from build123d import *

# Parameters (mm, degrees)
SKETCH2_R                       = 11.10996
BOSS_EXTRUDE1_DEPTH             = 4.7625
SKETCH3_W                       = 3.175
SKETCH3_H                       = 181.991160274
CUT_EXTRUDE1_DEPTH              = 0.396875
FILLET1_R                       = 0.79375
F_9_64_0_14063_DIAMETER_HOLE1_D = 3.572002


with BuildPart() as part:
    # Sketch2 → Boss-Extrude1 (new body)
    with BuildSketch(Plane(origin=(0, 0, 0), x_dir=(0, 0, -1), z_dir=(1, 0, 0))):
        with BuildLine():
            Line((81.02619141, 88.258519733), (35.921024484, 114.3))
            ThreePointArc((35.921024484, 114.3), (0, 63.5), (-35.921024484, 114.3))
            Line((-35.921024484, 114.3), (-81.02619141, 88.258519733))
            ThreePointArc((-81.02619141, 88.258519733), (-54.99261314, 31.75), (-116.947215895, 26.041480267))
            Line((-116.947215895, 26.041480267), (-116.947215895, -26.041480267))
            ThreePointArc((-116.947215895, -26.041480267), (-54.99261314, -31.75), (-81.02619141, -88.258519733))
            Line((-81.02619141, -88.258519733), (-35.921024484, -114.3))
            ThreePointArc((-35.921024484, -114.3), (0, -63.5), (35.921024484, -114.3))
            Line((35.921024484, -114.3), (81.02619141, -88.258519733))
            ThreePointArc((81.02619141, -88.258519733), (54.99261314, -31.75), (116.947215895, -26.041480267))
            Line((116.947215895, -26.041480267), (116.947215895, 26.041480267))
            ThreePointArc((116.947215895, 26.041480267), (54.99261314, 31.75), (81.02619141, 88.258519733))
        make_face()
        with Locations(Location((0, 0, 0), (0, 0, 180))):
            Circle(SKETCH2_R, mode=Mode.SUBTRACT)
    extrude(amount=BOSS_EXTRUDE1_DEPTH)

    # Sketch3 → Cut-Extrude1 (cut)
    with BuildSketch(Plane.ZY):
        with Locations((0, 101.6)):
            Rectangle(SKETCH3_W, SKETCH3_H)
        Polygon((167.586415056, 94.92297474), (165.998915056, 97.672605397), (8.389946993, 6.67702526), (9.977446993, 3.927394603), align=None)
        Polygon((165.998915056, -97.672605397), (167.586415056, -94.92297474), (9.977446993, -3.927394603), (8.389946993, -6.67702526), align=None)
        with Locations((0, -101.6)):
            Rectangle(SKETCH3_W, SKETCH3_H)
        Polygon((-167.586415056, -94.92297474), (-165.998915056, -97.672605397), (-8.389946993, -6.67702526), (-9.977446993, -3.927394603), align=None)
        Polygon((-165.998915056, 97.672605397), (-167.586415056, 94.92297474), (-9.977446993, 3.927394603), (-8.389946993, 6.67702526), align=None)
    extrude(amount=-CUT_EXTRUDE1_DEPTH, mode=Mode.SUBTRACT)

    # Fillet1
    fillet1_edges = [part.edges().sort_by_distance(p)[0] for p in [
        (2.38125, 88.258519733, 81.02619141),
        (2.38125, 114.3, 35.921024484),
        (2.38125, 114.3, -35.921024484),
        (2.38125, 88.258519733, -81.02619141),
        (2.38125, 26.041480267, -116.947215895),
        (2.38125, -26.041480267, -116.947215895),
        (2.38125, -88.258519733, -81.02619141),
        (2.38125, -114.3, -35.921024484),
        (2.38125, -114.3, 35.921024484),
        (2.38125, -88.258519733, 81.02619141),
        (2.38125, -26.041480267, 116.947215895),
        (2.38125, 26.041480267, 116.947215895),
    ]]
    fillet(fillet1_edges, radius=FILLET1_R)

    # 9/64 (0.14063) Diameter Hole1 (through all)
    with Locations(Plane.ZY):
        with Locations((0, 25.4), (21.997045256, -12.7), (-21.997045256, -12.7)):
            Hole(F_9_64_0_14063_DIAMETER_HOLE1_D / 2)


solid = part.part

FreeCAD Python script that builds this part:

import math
import FreeCAD as App
import Part
import Sketcher

V = App.Vector
Q = App.Units.Quantity


def edges_at(feature, points):
    """Names of the edges that pass closest to the given points."""
    edges = feature.Shape.Edges
    near = lambda p: min(range(len(edges)), key=lambda i: edges[i].distToShape(Part.Vertex(*p))[0])
    return sorted({f"Edge{near(p) + 1}" for p in points})


def add_polygon(sketch, points):
    """Adds a closed chain of lines whose ends are joined by coincident constraints."""
    first, n = sketch.GeometryCount, len(points)
    for a, b in zip(points, points[1:] + points[:1]):
        sketch.addGeometry(Part.LineSegment(App.Vector(*a, 0), App.Vector(*b, 0)), False)
    for i in range(n):
        sketch.addConstraint(Sketcher.Constraint("Coincident", first + i, 2, first + (i + 1) % n, 1))

doc = App.newDocument("Part")
body = doc.addObject("PartDesign::Body", "Body")

# Sketch on YZ plane
sketch1 = body.newObject("Sketcher::SketchObject", "Sketch")
sketch1.AttachmentSupport = (doc.getObject("YZ_Plane"), [""])
sketch1.MapMode = "FlatFace"
sketch1.addGeometry([
    Part.LineSegment(V(88, -81, 0), V(114, -36, 0)),  # 0
    Part.ArcOfCircle(Part.Circle(V(102, 0, 0), V(0, 0, 1), 38), math.radians(71), math.radians(289)),  # 1
    Part.LineSegment(V(114, 36, 0), V(88, 81, 0)),  # 2
    Part.ArcOfCircle(Part.Circle(V(51, 88, 0), V(0, 0, 1), 38), math.radians(131), math.radians(349)),  # 3
    Part.LineSegment(V(26, 117, 0), V(-26, 117, 0)),  # 4
    Part.ArcOfCircle(Part.Circle(V(-51, 88, 0), V(0, 0, 1), 38), math.radians(-169), math.radians(49)),  # 5
    Part.LineSegment(V(-88, 81, 0), V(-114, 36, 0)),  # 6
    Part.ArcOfCircle(Part.Circle(V(-102, 0, 0), V(0, 0, 1), 38), math.radians(-109), math.radians(109)),  # 7
    Part.LineSegment(V(-114, -36, 0), V(-88, -81, 0)),  # 8
    Part.ArcOfCircle(Part.Circle(V(-51, -88, 0), V(0, 0, 1), 38), math.radians(-49), math.radians(169)),  # 9
    Part.LineSegment(V(-26, -117, 0), V(26, -117, 0)),  # 10
    Part.ArcOfCircle(Part.Circle(V(51, -88, 0), V(0, 0, 1), 38), math.radians(11), math.radians(229)),  # 11
    Part.Circle(V(0, 0, 0), V(0, 0, 1), 11),  # 12
], False)
sketch1.addConstraint([
    Sketcher.Constraint("Coincident", 0, 2, 1, 2),
    Sketcher.Constraint("Coincident", 1, 1, 2, 1),
    Sketcher.Constraint("Coincident", 2, 2, 3, 2),
    Sketcher.Constraint("Coincident", 3, 1, 4, 1),
    Sketcher.Constraint("Coincident", 4, 2, 5, 2),
    Sketcher.Constraint("Coincident", 5, 1, 6, 1),
    Sketcher.Constraint("Coincident", 6, 2, 7, 2),
    Sketcher.Constraint("Coincident", 7, 1, 8, 1),
    Sketcher.Constraint("Coincident", 8, 2, 9, 2),
    Sketcher.Constraint("Coincident", 9, 1, 10, 1),
    Sketcher.Constraint("Coincident", 10, 2, 11, 2),
    Sketcher.Constraint("Coincident", 11, 1, 0, 1),
    Sketcher.Constraint("Horizontal", 4),
    Sketcher.Constraint("Horizontal", 10),
    Sketcher.Constraint("Coincident", 12, 3, -1, 1),
    Sketcher.Constraint("Equal", 1, 3),
    Sketcher.Constraint("Equal", 3, 5),
    Sketcher.Constraint("Equal", 5, 7),
    Sketcher.Constraint("Equal", 7, 9),
    Sketcher.Constraint("Equal", 9, 11),
    Sketcher.Constraint("Symmetric", 1, 3, 7, 3, -1, 1),
    Sketcher.Constraint("Symmetric", 3, 3, 9, 3, -1, 1),
    Sketcher.Constraint("Symmetric", 5, 3, 11, 3, -1, 1),
    Sketcher.Constraint("Symmetric", 3, 3, 5, 3, -2),
    Sketcher.Constraint("Symmetric", 1, 1, 6, 2, -2),
    Sketcher.Constraint("Parallel", 0, 6),
    Sketcher.Constraint("Parallel", 2, 8),
    Sketcher.Constraint("Horizontal", 2, 2, 5, 1),
    Sketcher.Constraint("Horizontal", 0, 2, 7, 1),
    Sketcher.Constraint("Vertical", 0, 2, 1, 1),
    Sketcher.Constraint("Vertical", 4, 2, 9, 1),
    Sketcher.Constraint("Radius", 1, Q("1.5 in")),
    Sketcher.Constraint("DistanceX", -1, 1, 1, 3, Q("4 in")),
    Sketcher.Constraint("DistanceX", -1, 1, 3, 3, Q("2 in")),
    Sketcher.Constraint("Angle", 0, Q("60 deg")),
    Sketcher.Constraint("Diameter", 12, Q("0.8748 in")),
    Sketcher.Constraint("DistanceX", -1, 1, 0, 2, Q("4.5 in")),
    Sketcher.Constraint("DistanceX", 4, 2, 2, 2, Q("4.5 in")),
    Sketcher.Constraint("DistanceX", 4, 2, 4, 1, 52.082961),
])
pad1 = body.newObject("PartDesign::Pad", "Pad")
pad1.Profile = sketch1
pad1.Length = Q("0.1875 in")

# Sketch on YZ plane
sketch2 = body.newObject("Sketcher::SketchObject", "Sketch001")
sketch2.AttachmentSupport = (doc.getObject("YZ_Plane"), [""])
sketch2.MapMode = "FlatFace"
add_polygon(sketch2, [(192.6, -1.6), (10.6, -1.6), (10.6, 1.6), (192.6, 1.6)])  # lines 0-3
add_polygon(sketch2, [(94.9, 167.6), (97.7, 166), (6.7, 8.4), (3.9, 10)])  # lines 4-7
add_polygon(sketch2, [(-97.7, 166), (-94.9, 167.6), (-3.9, 10), (-6.7, 8.4)])  # lines 8-11
add_polygon(sketch2, [(-10.6, -1.6), (-192.6, -1.6), (-192.6, 1.6), (-10.6, 1.6)])  # lines 12-15
add_polygon(sketch2, [(-94.9, -167.6), (-97.7, -166), (-6.7, -8.4), (-3.9, -10)])  # lines 16-19
add_polygon(sketch2, [(97.7, -166), (94.9, -167.6), (3.9, -10), (6.7, -8.4)])  # lines 20-23
sketch2.addConstraint([
    Sketcher.Constraint("Horizontal", 0),
    Sketcher.Constraint("Vertical", 1),
    Sketcher.Constraint("Horizontal", 2),
    Sketcher.Constraint("Vertical", 3),
    Sketcher.Constraint("Horizontal", 12),
    Sketcher.Constraint("Vertical", 13),
    Sketcher.Constraint("Horizontal", 14),
    Sketcher.Constraint("Vertical", 15),
    Sketcher.Constraint("Symmetric", 2, 2, 12, 2, -1, 1),
    Sketcher.Constraint("Symmetric", 0, 2, 14, 2, -1, 1),
    Sketcher.Constraint("Symmetric", 4, 2, 16, 2, -1, 1),
    Sketcher.Constraint("Symmetric", 5, 2, 17, 2, -1, 1),
    Sketcher.Constraint("Symmetric", 6, 2, 18, 2, -1, 1),
    Sketcher.Constraint("Symmetric", 7, 2, 19, 2, -1, 1),
    Sketcher.Constraint("Symmetric", 8, 2, 20, 2, -1, 1),
    Sketcher.Constraint("Symmetric", 9, 2, 21, 2, -1, 1),
    Sketcher.Constraint("Symmetric", 10, 2, 22, 2, -1, 1),
    Sketcher.Constraint("Symmetric", 11, 2, 23, 2, -1, 1),
    Sketcher.Constraint("Symmetric", 7, 2, 8, 2, -2),
    Sketcher.Constraint("Symmetric", 6, 2, 9, 2, -2),
    Sketcher.Constraint("Symmetric", 5, 2, 10, 2, -2),
    Sketcher.Constraint("Symmetric", 4, 2, 11, 2, -2),
    Sketcher.Constraint("Perpendicular", 4, 5),
    Sketcher.Constraint("Perpendicular", 5, 6),
    Sketcher.Constraint("Perpendicular", 6, 7),
    Sketcher.Constraint("Horizontal", 3, 2, 12, 2),
    Sketcher.Constraint("Angle", 4, Q("-30 deg")),
    Sketcher.Constraint("DistanceX", 8, 2, 5, 2, Q("4 in")),
    Sketcher.Constraint("DistanceY", 1, 1, 1, 2, Q("0.125 in")),
    Sketcher.Constraint("Distance", 4, Q("0.125 in")),
    Sketcher.Constraint("DistanceX", 0, 2, 0, 1, 181.99116),
    Sketcher.Constraint("Distance", 5, 181.99116),
    Sketcher.Constraint("DistanceX", -1, 1, 0, 2, 10.60442),
    Sketcher.Constraint("DistanceY", -1, 1, 4, 2, 165.998915),
])
pocket1 = body.newObject("PartDesign::Pocket", "Pocket")
pocket1.Profile = sketch2
pocket1.Length = Q("0.015625 in")
pocket1.Reversed = True
doc.recompute()

fillet = body.newObject("PartDesign::Fillet", "Fillet")
fillet.Base = (pocket1, edges_at(pocket1, [
    (2.381, 88.259, 81.026),
    (2.381, 114.3, 35.921),
    (2.381, 114.3, -35.921),
    (2.381, 88.259, -81.026),
    (2.381, 26.041, -116.947),
    (2.381, -26.041, -116.947),
    (2.381, -88.259, -81.026),
    (2.381, -114.3, -35.921),
    (2.381, -114.3, 35.921),
    (2.381, -88.259, 81.026),
    (2.381, -26.041, 116.947),
    (2.381, 26.041, 116.947),
]))
fillet.Radius = Q("0.03125 in")

# Sketch on YZ plane
sketch3 = body.newObject("Sketcher::SketchObject", "Sketch002")
sketch3.AttachmentSupport = (doc.getObject("YZ_Plane"), [""])
sketch3.MapMode = "FlatFace"
sketch3.addGeometry([
    Part.Circle(V(25.4, 0, 0), V(0, 0, 1), 1.8),
    Part.Circle(V(-12.7, 22, 0), V(0, 0, 1), 1.8),
    Part.Circle(V(-12.7, -22, 0), V(0, 0, 1), 1.8),
], False)
sketch3.addConstraint([
    Sketcher.Constraint("Equal", 0, 1),
    Sketcher.Constraint("Equal", 1, 2),
    Sketcher.Constraint("Symmetric", 1, 3, 2, 3, -1),
    Sketcher.Constraint("PointOnObject", 0, 3, -1),
    Sketcher.Constraint("DistanceX", -1, 1, 0, 3, Q("1 in")),
    Sketcher.Constraint("DistanceX", 1, 3, -1, 1, Q("0.5 in")),
    Sketcher.Constraint("Diameter", 0, 3.572002),
    Sketcher.Constraint("DistanceY", 2, 3, 1, 3, 43.994091),
])
doc.recompute()
hole = body.newObject("PartDesign::Hole", "Hole")
hole.Profile = sketch3
hole.ThreadType = "None"
hole.Diameter = 3.572002
hole.DepthType = "ThroughAll"
hole.Reversed = True

doc.recompute()
